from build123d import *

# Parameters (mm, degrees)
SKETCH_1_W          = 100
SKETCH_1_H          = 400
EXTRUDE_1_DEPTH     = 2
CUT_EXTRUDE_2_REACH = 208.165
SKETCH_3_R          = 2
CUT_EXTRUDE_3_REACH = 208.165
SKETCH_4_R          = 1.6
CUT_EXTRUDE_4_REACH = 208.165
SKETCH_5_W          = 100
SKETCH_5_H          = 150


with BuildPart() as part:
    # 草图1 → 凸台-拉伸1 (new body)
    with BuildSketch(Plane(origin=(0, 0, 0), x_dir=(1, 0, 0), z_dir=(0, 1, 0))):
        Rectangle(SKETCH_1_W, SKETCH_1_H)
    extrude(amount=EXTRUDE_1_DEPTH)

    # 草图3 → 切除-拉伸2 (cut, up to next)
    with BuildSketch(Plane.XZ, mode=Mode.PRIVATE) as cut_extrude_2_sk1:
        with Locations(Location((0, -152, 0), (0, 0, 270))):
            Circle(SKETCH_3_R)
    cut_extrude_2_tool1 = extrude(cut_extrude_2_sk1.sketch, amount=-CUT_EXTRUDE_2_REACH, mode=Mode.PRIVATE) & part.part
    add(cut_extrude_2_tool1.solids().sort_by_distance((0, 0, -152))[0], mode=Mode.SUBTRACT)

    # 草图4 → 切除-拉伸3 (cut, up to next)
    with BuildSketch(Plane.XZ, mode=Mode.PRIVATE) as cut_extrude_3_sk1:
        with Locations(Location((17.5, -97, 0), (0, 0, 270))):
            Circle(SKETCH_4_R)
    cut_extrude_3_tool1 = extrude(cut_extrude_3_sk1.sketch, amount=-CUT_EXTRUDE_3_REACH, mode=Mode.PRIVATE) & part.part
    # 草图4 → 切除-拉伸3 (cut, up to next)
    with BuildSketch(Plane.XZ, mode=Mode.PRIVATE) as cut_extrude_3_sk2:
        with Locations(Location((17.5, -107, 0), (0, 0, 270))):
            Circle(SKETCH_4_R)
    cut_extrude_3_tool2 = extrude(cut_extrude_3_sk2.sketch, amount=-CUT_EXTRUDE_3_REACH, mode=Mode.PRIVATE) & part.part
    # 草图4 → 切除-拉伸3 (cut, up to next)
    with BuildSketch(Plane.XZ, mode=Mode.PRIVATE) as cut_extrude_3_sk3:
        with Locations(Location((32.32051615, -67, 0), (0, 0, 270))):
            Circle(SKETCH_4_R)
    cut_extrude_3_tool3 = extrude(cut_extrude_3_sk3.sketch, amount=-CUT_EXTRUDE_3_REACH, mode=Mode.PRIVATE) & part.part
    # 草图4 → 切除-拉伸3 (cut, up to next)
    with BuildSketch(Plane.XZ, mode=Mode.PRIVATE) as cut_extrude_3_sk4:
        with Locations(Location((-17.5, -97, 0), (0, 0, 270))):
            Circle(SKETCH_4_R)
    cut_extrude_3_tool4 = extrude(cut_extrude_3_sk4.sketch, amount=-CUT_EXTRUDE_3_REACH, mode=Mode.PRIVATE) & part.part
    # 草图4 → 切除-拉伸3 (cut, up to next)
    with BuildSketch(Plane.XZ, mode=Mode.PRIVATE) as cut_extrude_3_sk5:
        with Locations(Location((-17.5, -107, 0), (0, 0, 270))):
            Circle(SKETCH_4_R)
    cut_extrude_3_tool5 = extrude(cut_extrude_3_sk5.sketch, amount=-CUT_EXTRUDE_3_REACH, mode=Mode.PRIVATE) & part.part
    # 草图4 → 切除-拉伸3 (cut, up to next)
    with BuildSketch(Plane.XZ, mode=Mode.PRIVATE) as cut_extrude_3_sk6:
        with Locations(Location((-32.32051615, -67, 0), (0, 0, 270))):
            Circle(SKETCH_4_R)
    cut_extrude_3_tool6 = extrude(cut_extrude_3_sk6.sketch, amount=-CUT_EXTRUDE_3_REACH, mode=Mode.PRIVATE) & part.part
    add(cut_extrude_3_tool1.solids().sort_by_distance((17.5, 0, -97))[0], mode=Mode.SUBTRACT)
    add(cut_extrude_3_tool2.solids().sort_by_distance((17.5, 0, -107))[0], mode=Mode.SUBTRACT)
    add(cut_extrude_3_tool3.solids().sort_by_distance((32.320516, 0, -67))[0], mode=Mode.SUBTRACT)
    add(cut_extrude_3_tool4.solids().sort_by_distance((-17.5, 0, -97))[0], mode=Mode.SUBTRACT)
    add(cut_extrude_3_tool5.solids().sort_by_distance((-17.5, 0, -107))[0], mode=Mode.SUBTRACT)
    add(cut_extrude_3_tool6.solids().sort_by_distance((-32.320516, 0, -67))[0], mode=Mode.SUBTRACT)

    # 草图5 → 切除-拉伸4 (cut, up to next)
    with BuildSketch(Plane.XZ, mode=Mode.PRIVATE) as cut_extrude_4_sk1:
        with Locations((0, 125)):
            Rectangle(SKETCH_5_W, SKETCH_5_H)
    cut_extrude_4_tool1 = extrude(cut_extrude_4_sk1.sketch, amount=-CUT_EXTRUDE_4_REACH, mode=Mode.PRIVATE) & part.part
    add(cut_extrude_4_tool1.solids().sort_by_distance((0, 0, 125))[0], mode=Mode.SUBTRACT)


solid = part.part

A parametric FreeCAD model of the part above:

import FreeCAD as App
import Part
import Sketcher

doc = App.newDocument("Part")
body = doc.addObject("PartDesign::Body", "Body")

# Sketch on XZ plane
sketch1 = doc.addObject("Sketcher::SketchObject", "Sketch")
body.addObject(sketch1)
sketch1.AttachmentSupport = (doc.XZ_Plane, [""])
sketch1.MapMode = "FlatFace"
sketch1.addGeometry([
    Part.LineSegment(App.Vector(-50, -200, 0), App.Vector(-50, 200, 0)),
    Part.LineSegment(App.Vector(-50, 200, 0), App.Vector(50, 200, 0)),
    Part.LineSegment(App.Vector(50, 200, 0), App.Vector(50, -200, 0)),
    Part.LineSegment(App.Vector(50, -200, 0), App.Vector(-50, -200, 0)),
], False)
sketch1.addConstraint([
    Sketcher.Constraint("Coincident", 0, 2, 1, 1),
    Sketcher.Constraint("Coincident", 1, 2, 2, 1),
    Sketcher.Constraint("Coincident", 2, 2, 3, 1),
    Sketcher.Constraint("Coincident", 3, 2, 0, 1),
    Sketcher.Constraint("Vertical", 0),
    Sketcher.Constraint("Horizontal", 1),
    Sketcher.Constraint("Vertical", 2),
    Sketcher.Constraint("Horizontal", 3),
    Sketcher.Constraint("Symmetric", 0, 2, 2, 2, -1, 1),
    Sketcher.Constraint("DistanceX", 1, 1, 1, 2, 100.0),
    Sketcher.Constraint("DistanceY", 0, 1, 0, 2, 400.0),
])
pad1 = doc.addObject("PartDesign::Pad", "Pad")
body.addObject(pad1)
pad1.Profile = sketch1
pad1.Length = 2
pad1.Reversed = True

# Sketch on XZ plane
sketch2 = doc.addObject("Sketcher::SketchObject", "Sketch001")
body.addObject(sketch2)
sketch2.AttachmentSupport = (doc.XZ_Plane, [""])
sketch2.MapMode = "FlatFace"
sketch2.addGeometry(Part.Circle(App.Vector(0, -152, 0), App.Vector(0, 0, 1), 2), False)
sketch2.addConstraint([
    Sketcher.Constraint("PointOnObject", 0, 3, -2),
    Sketcher.Constraint("Diameter", 0, 4.0),
    Sketcher.Constraint("DistanceY", 0, 3, -1, 1, 152.0),
])
pocket1 = doc.addObject("PartDesign::Pocket", "Pocket")
body.addObject(pocket1)
pocket1.Profile = sketch2
pocket1.Type = "UpToFirst"

# Sketch on XZ plane
sketch3 = doc.addObject("Sketcher::SketchObject", "Sketch002")
body.addObject(sketch3)
sketch3.AttachmentSupport = (doc.XZ_Plane, [""])
sketch3.MapMode = "FlatFace"
sketch3.addGeometry(Part.Circle(App.Vector(17.5, -97, 0), App.Vector(0, 0, 1), 1.6), False)
sketch3.addConstraint([
    Sketcher.Constraint("Diameter", 0, 3.2),
    Sketcher.Constraint("DistanceY", 0, 3, -1, 1, 97.0),
    Sketcher.Constraint("DistanceX", -1, 1, 0, 3, 17.5),
])
pocket2 = doc.addObject("PartDesign::Pocket", "Pocket001")
body.addObject(pocket2)
pocket2.Profile = sketch3
pocket2.Type = "UpToFirst"

# Sketch on XZ plane
sketch4 = doc.addObject("Sketcher::SketchObject", "Sketch003")
body.addObject(sketch4)
sketch4.AttachmentSupport = (doc.XZ_Plane, [""])
sketch4.MapMode = "FlatFace"
sketch4.addGeometry(Part.Circle(App.Vector(17.5, -107, 0), App.Vector(0, 0, 1), 1.6), False)
sketch4.addConstraint([
    Sketcher.Constraint("Diameter", 0, 3.2),
    Sketcher.Constraint("DistanceY", 0, 3, -1, 1, 107.0),
    Sketcher.Constraint("DistanceX", -1, 1, 0, 3, 17.5),
])
pocket3 = doc.addObject("PartDesign::Pocket", "Pocket002")
body.addObject(pocket3)
pocket3.Profile = sketch4
pocket3.Type = "UpToFirst"

# Sketch on XZ plane
sketch5 = doc.addObject("Sketcher::SketchObject", "Sketch004")
body.addObject(sketch5)
sketch5.AttachmentSupport = (doc.XZ_Plane, [""])
sketch5.MapMode = "FlatFace"
sketch5.addGeometry(Part.Circle(App.Vector(32.3, -67, 0), App.Vector(0, 0, 1), 1.6), False)
sketch5.addConstraint([
    Sketcher.Constraint("Diameter", 0, 3.2),
    Sketcher.Constraint("DistanceY", 0, 3, -1, 1, 67.0),
    Sketcher.Constraint("DistanceX", -1, 1, 0, 3, 32.320516),
])
pocket4 = doc.addObject("PartDesign::Pocket", "Pocket003")
body.addObject(pocket4)
pocket4.Profile = sketch5
pocket4.Type = "UpToFirst"

# Sketch on XZ plane
sketch6 = doc.addObject("Sketcher::SketchObject", "Sketch005")
body.addObject(sketch6)
sketch6.AttachmentSupport = (doc.XZ_Plane, [""])
sketch6.MapMode = "FlatFace"
sketch6.addGeometry(Part.Circle(App.Vector(-17.5, -97, 0), App.Vector(0, 0, 1), 1.6), False)
sketch6.addConstraint([
    Sketcher.Constraint("Diameter", 0, 3.2),
    Sketcher.Constraint("DistanceY", 0, 3, -1, 1, 97.0),
    Sketcher.Constraint("DistanceX", 0, 3, -1, 1, 17.5),
])
pocket5 = doc.addObject("PartDesign::Pocket", "Pocket004")
body.addObject(pocket5)
pocket5.Profile = sketch6
pocket5.Type = "UpToFirst"

# Sketch on XZ plane
sketch7 = doc.addObject("Sketcher::SketchObject", "Sketch006")
body.addObject(sketch7)
sketch7.AttachmentSupport = (doc.XZ_Plane, [""])
sketch7.MapMode = "FlatFace"
sketch7.addGeometry(Part.Circle(App.Vector(-17.5, -107, 0), App.Vector(0, 0, 1), 1.6), False)
sketch7.addConstraint([
    Sketcher.Constraint("Diameter", 0, 3.2),
    Sketcher.Constraint("DistanceY", 0, 3, -1, 1, 107.0),
    Sketcher.Constraint("DistanceX", 0, 3, -1, 1, 17.5),
])
pocket6 = doc.addObject("PartDesign::Pocket", "Pocket005")
body.addObject(pocket6)
pocket6.Profile = sketch7
pocket6.Type = "UpToFirst"

# Sketch on XZ plane
sketch8 = doc.addObject("Sketcher::SketchObject", "Sketch007")
body.addObject(sketch8)
sketch8.AttachmentSupport = (doc.XZ_Plane, [""])
sketch8.MapMode = "FlatFace"
sketch8.addGeometry(Part.Circle(App.Vector(-32.3, -67, 0), App.Vector(0, 0, 1), 1.6), False)
sketch8.addConstraint([
    Sketcher.Constraint("Diameter", 0, 3.2),
    Sketcher.Constraint("DistanceY", 0, 3, -1, 1, 67.0),
    Sketcher.Constraint("DistanceX", 0, 3, -1, 1, 32.320516),
])
pocket7 = doc.addObject("PartDesign::Pocket", "Pocket006")
body.addObject(pocket7)
pocket7.Profile = sketch8
pocket7.Type = "UpToFirst"

# Sketch on XZ plane
sketch9 = doc.addObject("Sketcher::SketchObject", "Sketch008")
body.addObject(sketch9)
sketch9.AttachmentSupport = (doc.XZ_Plane, [""])
sketch9.MapMode = "FlatFace"
sketch9.addGeometry([
    Part.LineSegment(App.Vector(-50, 200, 0), App.Vector(-50, 50, 0)),
    Part.LineSegment(App.Vector(-50, 50, 0), App.Vector(50, 50, 0)),
    Part.LineSegment(App.Vector(50, 50, 0), App.Vector(50, 200, 0)),
    Part.LineSegment(App.Vector(50, 200, 0), App.Vector(-50, 200, 0)),
], False)
sketch9.addConstraint([
    Sketcher.Constraint("Coincident", 0, 2, 1, 1),
    Sketcher.Constraint("Coincident", 1, 2, 2, 1),
    Sketcher.Constraint("Coincident", 2, 2, 3, 1),
    Sketcher.Constraint("Coincident", 3, 2, 0, 1),
    Sketcher.Constraint("Vertical", 0),
    Sketcher.Constraint("Horizontal", 1),
    Sketcher.Constraint("Vertical", 2),
    Sketcher.Constraint("Horizontal", 3),
    Sketcher.Constraint("DistanceX", 1, 1, 1, 2, 100.0),
    Sketcher.Constraint("DistanceY", 0, 2, 0, 1, 150.0),
    Sketcher.Constraint("DistanceX", 0, 2, -1, 1, 50.0),
    Sketcher.Constraint("DistanceY", -1, 1, 0, 2, 50.0),
])
pocket8 = doc.addObject("PartDesign::Pocket", "Pocket007")
body.addObject(pocket8)
pocket8.Profile = sketch9
pocket8.Type = "UpToFirst"

doc.recompute()
